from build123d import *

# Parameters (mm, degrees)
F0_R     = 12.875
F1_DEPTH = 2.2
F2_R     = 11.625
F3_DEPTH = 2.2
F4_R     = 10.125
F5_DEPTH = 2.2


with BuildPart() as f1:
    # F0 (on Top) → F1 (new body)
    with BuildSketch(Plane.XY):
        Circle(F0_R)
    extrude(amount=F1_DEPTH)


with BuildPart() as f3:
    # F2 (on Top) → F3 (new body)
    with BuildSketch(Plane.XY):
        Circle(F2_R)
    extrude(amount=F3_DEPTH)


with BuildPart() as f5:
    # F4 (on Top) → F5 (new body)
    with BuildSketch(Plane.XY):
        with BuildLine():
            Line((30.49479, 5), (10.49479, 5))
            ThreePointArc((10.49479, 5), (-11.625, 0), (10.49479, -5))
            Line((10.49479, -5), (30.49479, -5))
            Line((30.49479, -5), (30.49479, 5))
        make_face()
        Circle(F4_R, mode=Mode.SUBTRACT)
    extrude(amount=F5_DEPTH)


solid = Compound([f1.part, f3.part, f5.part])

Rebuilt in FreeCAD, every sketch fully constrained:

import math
import FreeCAD as App
import Part
import Sketcher

V = App.Vector
Q = App.Units.Quantity

doc = App.newDocument("Part")
body = doc.addObject("PartDesign::Body", "Body")

# Sketch on XY plane
sketch1 = body.newObject("Sketcher::SketchObject", "Sketch")
sketch1.AttachmentSupport = (doc.getObject("XY_Plane"), [""])
sketch1.MapMode = "FlatFace"
sketch1.addGeometry(Part.Circle(V(0, 0, 0), V(0, 0, 1), 13), False)
sketch1.addConstraint([
    Sketcher.Constraint("Coincident", 0, 3, -1, 1),
    Sketcher.Constraint("Diameter", 0, Q("25.75 mm")),
])
pad1 = body.newObject("PartDesign::Pad", "Pad")
pad1.Profile = sketch1
pad1.Length = 2.2
body2 = doc.addObject("PartDesign::Body", "Body001")

# Sketch on XY plane
sketch2 = body2.newObject("Sketcher::SketchObject", "Sketch001")
sketch2.AttachmentSupport = (doc.getObject("XY_Plane001"), [""])
sketch2.MapMode = "FlatFace"
sketch2.addGeometry(Part.Circle(V(0, 0, 0), V(0, 0, 1), 12), False)
sketch2.addConstraint([
    Sketcher.Constraint("Coincident", 0, 3, -1, 1),
    Sketcher.Constraint("Diameter", 0, Q("23.25 mm")),
])
pad2 = body2.newObject("PartDesign::Pad", "Pad001")
pad2.Profile = sketch2
pad2.Length = 2.2
body3 = doc.addObject("PartDesign::Body", "Body002")

# Sketch on XY plane
sketch3 = body3.newObject("Sketcher::SketchObject", "Sketch002")
sketch3.AttachmentSupport = (doc.getObject("XY_Plane002"), [""])
sketch3.MapMode = "FlatFace"
sketch3.addGeometry([
    Part.LineSegment(V(30, 5, 0), V(10, 5, 0)),  # 0
    Part.ArcOfCircle(Part.Circle(V(0, 0, 0), V(0, 0, 1), 12), math.radians(25), math.radians(335)),  # 1
    Part.LineSegment(V(10, -5, 0), V(30, -5, 0)),  # 2
    Part.LineSegment(V(30, -5, 0), V(30, 5, 0)),  # 3
    Part.Circle(V(0, 0, 0), V(0, 0, 1), 10),  # 4
], False)
sketch3.addConstraint([
    Sketcher.Constraint("Coincident", 0, 2, 1, 1),
    Sketcher.Constraint("Coincident", 1, 2, 2, 1),
    Sketcher.Constraint("Coincident", 2, 2, 3, 1),
    Sketcher.Constraint("Coincident", 3, 2, 0, 1),
    Sketcher.Constraint("Horizontal", 0),
    Sketcher.Constraint("Horizontal", 2),
    Sketcher.Constraint("Vertical", 3),
    Sketcher.Constraint("Coincident", 1, 3, -1, 1),
    Sketcher.Constraint("Coincident", 4, 3, -1, 1),
    Sketcher.Constraint("Vertical", 0, 2, 1, 2),
    Sketcher.Constraint("Diameter", 4, Q("20.25 mm")),
    Sketcher.Constraint("DistanceX", 0, 2, 0, 1, Q("20 mm")),
    Sketcher.Constraint("DistanceY", 3, 1, 3, 2, Q("10 mm")),
    Sketcher.Constraint("Radius", 1, Q("11.625 mm")),
])
pad3 = body3.newObject("PartDesign::Pad", "Pad002")
pad3.Profile = sketch3
pad3.Length = 2.2

doc.recompute()
